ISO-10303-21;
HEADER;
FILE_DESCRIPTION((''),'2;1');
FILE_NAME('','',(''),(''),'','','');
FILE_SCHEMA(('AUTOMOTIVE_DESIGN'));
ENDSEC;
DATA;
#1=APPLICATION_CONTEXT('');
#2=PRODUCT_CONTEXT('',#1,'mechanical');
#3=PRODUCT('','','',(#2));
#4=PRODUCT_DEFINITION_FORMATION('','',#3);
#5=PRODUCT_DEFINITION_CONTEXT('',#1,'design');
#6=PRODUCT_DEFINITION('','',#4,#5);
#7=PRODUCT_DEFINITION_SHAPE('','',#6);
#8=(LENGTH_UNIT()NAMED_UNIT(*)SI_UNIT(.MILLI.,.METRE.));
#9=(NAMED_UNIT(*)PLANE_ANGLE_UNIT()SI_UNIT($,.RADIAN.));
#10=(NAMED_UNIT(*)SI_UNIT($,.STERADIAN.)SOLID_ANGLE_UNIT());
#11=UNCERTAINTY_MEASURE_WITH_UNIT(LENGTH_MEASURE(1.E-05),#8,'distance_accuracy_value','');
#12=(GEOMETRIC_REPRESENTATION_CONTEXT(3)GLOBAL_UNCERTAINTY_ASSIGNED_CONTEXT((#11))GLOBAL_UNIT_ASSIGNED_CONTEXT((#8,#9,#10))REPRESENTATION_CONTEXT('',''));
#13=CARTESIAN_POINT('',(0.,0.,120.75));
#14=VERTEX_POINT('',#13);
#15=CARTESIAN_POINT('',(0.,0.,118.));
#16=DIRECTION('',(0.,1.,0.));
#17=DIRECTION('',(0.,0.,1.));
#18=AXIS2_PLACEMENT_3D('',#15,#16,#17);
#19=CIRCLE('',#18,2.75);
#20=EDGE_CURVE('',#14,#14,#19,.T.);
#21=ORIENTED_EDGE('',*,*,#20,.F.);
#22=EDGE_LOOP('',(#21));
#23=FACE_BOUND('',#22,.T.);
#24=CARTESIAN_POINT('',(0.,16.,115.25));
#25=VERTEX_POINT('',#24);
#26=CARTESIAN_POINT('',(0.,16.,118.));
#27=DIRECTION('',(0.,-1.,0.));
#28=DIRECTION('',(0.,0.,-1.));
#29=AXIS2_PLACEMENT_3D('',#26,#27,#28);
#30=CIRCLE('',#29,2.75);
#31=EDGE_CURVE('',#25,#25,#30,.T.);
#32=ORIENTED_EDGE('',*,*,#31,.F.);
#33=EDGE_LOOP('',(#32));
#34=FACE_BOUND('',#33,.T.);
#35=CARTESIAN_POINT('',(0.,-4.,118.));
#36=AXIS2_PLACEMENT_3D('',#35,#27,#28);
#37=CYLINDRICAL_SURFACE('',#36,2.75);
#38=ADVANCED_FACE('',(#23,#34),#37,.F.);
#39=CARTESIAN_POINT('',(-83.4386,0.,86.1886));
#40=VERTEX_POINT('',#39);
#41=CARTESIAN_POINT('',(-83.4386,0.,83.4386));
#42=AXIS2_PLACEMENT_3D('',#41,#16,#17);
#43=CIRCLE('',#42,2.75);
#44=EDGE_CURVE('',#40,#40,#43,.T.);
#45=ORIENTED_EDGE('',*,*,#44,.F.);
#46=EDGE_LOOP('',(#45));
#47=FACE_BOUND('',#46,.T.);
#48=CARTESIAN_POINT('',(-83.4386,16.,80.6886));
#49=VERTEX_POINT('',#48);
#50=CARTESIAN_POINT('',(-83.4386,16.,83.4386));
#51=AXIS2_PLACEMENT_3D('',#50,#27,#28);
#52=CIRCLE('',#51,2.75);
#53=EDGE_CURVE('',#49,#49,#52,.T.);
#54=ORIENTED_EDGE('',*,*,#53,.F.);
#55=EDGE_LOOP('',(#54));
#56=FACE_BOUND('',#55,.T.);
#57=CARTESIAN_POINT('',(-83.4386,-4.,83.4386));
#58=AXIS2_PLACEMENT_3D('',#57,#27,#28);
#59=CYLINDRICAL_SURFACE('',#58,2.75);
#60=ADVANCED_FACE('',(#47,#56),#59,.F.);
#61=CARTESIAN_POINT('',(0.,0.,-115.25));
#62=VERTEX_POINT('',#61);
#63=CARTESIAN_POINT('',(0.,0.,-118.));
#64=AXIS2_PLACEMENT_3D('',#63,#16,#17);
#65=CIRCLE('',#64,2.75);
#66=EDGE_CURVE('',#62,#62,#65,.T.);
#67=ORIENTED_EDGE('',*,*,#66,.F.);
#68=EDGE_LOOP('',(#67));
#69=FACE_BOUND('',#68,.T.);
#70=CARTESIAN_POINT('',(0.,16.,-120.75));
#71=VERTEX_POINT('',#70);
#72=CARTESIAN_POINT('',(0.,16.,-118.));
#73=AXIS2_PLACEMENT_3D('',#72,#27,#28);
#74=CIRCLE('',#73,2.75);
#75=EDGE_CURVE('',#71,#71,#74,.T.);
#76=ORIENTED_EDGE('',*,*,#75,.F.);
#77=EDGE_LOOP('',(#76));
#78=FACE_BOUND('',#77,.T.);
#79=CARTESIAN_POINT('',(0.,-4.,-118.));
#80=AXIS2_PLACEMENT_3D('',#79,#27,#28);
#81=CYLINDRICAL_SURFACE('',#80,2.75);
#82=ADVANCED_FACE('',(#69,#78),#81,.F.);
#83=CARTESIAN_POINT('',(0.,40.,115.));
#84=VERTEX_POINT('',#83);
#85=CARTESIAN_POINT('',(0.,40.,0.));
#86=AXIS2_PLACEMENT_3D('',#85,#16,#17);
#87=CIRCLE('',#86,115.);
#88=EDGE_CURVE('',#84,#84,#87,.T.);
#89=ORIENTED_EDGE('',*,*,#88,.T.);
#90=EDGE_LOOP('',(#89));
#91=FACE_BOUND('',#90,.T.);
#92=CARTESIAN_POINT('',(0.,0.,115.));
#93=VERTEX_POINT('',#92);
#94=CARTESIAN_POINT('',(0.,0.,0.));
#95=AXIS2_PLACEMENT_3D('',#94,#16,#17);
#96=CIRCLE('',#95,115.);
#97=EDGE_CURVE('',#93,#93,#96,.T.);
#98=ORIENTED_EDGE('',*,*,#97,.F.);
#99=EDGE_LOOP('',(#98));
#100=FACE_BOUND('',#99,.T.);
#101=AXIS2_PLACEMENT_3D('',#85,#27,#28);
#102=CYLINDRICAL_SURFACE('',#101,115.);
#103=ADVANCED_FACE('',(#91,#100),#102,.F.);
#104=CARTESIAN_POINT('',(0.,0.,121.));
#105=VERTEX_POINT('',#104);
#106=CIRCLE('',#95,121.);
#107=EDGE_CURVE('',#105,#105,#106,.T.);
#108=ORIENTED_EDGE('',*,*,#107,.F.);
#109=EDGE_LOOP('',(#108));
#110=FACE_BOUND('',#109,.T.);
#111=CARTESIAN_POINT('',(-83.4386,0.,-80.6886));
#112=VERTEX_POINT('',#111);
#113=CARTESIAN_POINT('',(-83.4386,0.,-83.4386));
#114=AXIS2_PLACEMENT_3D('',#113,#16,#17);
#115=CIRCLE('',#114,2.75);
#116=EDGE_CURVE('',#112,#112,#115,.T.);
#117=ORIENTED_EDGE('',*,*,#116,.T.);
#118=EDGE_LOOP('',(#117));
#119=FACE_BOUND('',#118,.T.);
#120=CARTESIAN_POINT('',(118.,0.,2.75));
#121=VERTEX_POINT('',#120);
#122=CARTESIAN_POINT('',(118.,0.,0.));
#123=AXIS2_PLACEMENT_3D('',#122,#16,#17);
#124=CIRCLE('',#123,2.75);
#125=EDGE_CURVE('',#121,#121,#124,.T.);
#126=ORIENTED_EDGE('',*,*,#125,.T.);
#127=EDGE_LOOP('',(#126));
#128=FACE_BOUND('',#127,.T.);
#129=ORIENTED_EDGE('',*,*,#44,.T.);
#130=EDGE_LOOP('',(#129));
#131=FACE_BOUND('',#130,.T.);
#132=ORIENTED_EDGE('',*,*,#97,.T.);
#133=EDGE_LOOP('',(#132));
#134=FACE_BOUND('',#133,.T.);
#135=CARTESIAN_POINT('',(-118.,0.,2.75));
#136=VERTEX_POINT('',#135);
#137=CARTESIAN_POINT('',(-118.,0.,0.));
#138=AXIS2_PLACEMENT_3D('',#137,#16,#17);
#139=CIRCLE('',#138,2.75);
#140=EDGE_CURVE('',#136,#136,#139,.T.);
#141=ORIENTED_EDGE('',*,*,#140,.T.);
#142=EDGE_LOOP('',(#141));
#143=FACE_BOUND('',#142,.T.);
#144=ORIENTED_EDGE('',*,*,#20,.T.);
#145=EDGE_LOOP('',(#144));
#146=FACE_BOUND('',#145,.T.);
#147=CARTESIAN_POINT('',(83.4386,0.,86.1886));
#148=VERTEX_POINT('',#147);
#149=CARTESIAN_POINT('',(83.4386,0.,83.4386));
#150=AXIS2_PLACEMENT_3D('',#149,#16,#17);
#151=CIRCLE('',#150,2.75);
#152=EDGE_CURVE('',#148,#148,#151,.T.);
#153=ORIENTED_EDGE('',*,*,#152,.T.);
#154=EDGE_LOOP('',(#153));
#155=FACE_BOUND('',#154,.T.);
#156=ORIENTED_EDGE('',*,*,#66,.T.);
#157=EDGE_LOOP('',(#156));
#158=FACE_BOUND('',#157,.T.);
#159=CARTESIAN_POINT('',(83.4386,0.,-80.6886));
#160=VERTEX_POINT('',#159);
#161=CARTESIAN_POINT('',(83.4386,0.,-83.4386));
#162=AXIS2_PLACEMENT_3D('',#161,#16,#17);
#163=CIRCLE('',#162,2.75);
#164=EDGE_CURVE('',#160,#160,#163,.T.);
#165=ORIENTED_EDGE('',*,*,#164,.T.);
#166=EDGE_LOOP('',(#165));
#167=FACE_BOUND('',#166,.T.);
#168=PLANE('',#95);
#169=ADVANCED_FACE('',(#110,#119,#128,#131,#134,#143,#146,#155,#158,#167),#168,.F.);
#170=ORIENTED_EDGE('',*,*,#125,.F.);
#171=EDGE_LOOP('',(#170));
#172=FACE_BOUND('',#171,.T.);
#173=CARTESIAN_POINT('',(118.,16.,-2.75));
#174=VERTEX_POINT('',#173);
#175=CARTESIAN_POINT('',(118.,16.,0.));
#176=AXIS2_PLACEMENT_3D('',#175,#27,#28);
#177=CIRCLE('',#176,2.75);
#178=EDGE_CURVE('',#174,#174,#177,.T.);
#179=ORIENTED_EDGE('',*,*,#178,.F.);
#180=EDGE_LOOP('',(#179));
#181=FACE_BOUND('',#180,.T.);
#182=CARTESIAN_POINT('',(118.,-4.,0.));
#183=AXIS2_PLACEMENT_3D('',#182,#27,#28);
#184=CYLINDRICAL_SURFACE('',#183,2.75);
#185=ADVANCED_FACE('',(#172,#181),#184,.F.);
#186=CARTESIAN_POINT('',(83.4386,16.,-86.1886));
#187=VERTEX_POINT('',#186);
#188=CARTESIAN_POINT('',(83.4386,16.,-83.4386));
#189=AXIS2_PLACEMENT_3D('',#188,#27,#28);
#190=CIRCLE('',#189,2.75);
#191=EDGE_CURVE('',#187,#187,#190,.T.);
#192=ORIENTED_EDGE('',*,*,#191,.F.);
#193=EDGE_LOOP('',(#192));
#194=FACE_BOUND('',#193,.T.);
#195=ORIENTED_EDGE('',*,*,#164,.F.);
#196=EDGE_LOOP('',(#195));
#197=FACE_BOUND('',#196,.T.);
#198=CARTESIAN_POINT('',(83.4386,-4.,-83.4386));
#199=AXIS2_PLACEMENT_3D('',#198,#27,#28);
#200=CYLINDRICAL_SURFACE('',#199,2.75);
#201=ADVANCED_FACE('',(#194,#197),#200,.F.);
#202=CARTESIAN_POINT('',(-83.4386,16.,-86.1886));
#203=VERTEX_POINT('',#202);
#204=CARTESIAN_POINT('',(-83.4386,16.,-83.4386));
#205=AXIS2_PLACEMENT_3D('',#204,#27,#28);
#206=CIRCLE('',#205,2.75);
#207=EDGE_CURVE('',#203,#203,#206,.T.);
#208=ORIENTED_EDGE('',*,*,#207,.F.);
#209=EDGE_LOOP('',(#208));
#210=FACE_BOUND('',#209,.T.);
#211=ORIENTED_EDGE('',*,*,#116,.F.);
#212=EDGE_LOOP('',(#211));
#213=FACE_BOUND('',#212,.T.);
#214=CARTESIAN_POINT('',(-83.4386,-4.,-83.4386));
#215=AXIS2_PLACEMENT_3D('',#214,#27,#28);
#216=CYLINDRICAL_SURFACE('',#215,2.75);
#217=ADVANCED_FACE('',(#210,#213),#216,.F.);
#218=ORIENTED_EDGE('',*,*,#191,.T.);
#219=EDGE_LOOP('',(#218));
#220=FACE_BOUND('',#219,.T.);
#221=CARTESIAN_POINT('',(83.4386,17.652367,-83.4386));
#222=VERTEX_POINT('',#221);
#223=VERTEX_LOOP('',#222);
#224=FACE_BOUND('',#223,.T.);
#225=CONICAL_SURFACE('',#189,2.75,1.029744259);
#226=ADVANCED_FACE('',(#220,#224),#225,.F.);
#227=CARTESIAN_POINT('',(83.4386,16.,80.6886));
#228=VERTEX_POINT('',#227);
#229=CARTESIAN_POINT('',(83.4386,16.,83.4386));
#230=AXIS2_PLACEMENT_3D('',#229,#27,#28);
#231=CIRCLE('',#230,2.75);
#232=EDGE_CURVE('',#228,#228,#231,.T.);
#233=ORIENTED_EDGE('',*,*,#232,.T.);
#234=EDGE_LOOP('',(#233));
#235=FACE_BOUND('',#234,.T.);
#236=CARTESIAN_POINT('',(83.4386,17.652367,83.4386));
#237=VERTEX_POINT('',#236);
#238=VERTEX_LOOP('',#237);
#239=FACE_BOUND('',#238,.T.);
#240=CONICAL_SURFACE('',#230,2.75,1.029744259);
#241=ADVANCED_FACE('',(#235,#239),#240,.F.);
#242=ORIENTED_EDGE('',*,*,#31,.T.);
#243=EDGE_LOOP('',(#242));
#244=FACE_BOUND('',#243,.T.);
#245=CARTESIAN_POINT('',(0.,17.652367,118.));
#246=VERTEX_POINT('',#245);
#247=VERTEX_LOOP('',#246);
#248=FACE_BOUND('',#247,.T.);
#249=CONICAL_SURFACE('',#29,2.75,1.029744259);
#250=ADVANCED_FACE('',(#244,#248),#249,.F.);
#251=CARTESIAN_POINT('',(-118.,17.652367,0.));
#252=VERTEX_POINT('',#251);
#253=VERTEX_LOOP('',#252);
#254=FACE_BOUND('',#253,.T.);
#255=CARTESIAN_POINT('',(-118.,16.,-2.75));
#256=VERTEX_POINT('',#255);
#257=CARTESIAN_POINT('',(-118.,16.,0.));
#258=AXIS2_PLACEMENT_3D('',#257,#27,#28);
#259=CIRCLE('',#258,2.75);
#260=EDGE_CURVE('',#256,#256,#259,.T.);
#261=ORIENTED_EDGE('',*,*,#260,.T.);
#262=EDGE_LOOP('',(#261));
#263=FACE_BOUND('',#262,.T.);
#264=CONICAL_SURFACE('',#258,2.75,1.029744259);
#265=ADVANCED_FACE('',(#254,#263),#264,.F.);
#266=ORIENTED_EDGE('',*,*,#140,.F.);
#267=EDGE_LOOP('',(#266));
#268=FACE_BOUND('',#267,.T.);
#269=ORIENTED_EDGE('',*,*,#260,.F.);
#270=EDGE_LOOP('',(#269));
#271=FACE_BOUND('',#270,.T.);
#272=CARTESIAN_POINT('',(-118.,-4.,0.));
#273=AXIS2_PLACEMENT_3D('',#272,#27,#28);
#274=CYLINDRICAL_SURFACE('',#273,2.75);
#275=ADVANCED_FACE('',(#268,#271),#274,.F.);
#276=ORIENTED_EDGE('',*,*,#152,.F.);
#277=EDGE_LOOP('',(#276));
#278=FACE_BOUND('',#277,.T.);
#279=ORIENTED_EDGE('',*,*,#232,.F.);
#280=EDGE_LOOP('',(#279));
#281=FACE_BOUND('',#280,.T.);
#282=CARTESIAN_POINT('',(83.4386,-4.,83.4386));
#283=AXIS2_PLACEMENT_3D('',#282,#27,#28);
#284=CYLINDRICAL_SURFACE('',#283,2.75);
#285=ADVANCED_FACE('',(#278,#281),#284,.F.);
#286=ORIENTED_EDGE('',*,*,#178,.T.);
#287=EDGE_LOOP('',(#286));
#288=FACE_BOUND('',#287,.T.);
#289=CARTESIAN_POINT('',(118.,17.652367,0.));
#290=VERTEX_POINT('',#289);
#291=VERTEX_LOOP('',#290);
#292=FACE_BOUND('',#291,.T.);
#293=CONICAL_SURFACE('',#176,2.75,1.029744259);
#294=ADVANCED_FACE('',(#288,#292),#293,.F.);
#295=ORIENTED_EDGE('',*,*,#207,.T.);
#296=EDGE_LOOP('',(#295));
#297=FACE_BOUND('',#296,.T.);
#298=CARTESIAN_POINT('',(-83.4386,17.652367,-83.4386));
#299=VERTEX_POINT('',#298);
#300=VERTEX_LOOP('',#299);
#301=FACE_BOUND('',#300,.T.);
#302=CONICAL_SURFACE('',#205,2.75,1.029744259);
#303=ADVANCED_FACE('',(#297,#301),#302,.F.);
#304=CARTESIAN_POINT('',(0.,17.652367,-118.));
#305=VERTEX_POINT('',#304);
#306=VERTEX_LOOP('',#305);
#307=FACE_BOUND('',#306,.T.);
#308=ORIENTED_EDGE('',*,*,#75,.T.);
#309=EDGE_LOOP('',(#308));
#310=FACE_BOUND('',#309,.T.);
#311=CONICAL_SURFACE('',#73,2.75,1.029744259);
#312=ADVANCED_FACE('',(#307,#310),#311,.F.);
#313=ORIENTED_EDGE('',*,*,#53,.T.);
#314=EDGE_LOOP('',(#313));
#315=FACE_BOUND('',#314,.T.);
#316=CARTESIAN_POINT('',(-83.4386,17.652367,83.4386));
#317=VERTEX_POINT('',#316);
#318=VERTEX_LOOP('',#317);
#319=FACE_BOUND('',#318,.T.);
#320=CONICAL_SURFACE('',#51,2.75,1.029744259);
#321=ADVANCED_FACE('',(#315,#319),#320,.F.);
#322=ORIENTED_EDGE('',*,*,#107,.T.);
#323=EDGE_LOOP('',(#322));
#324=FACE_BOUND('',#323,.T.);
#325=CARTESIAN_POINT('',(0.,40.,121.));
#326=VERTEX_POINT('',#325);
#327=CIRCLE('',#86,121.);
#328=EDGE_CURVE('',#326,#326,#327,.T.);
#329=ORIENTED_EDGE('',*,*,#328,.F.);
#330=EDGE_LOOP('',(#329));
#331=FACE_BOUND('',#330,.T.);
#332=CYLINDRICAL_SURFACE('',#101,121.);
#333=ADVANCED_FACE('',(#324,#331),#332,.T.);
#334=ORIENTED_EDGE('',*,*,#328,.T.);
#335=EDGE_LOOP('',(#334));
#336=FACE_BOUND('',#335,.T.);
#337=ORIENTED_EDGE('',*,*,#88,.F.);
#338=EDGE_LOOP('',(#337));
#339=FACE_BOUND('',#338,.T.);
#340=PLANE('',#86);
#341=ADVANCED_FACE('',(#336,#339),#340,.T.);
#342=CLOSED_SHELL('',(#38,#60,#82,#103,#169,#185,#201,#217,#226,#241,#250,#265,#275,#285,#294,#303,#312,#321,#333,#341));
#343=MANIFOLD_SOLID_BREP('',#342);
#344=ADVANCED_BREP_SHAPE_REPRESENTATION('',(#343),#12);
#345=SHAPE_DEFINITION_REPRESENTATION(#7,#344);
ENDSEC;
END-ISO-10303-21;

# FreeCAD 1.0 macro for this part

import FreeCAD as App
import Part
import Sketcher

V = App.Vector

doc = App.newDocument("Part")
body = doc.addObject("PartDesign::Body", "Body")

sketch1 = body.newObject("Sketcher::SketchObject", "Sketch")
sketch1.AttachmentSupport = (doc.getObject("XZ_Plane"), [""])
sketch1.MapMode = "FlatFace"
sketch1.addGeometry(Part.Circle(V(0, 0, 0), V(0, 0, 1), 121), False)
sketch1.addGeometry(Part.Circle(V(0, 0, 0), V(0, 0, 1), 115), False)
sketch1.addConstraint(Sketcher.Constraint("Coincident", 0, 3, -1, 1))
sketch1.addConstraint(Sketcher.Constraint("Coincident", 1, 3, -1, 1))
sketch1.addConstraint(Sketcher.Constraint("Diameter", 0, 242.0))
sketch1.addConstraint(Sketcher.Constraint("Diameter", 1, 230.0))
pad1 = body.newObject("PartDesign::Pad", "Pad")
pad1.Profile = sketch1
pad1.Length = 40
pad1.Reversed = True

sketch2 = body.newObject("Sketcher::SketchObject", "Sketch001")
sketch2.AttachmentSupport = (doc.getObject("XZ_Plane"), [""])
sketch2.MapMode = "FlatFace"
sketch2.AttachmentOffset = App.Placement(V(0, 0, 4), App.Rotation())
sketch2.addGeometry(Part.Circle(V(83.4386, 83.4386, 0), V(0, 0, 1), 2.75), False)
sketch2.addGeometry(Part.Circle(V(118, 0, 0), V(0, 0, 1), 2.75), False)
sketch2.addGeometry(Part.Circle(V(83.4386, -83.4386, 0), V(0, 0, 1), 2.75), False)
sketch2.addGeometry(Part.Circle(V(0, -118, 0), V(0, 0, 1), 2.75), False)
sketch2.addGeometry(Part.Circle(V(-83.4386, -83.4386, 0), V(0, 0, 1), 2.75), False)
sketch2.addGeometry(Part.Circle(V(-118, 0, 0), V(0, 0, 1), 2.75), False)
sketch2.addGeometry(Part.Circle(V(-83.4386, 83.4386, 0), V(0, 0, 1), 2.75), False)
sketch2.addGeometry(Part.Circle(V(0, 118, 0), V(0, 0, 1), 2.75), False)
sketch2.addConstraint(Sketcher.Constraint("Equal", 0, 1))
sketch2.addConstraint(Sketcher.Constraint("Equal", 1, 2))
sketch2.addConstraint(Sketcher.Constraint("Equal", 2, 3))
sketch2.addConstraint(Sketcher.Constraint("Equal", 3, 4))
sketch2.addConstraint(Sketcher.Constraint("Equal", 4, 5))
sketch2.addConstraint(Sketcher.Constraint("Equal", 5, 6))
sketch2.addConstraint(Sketcher.Constraint("Equal", 6, 7))
sketch2.addConstraint(Sketcher.Constraint("Symmetric", 0, 3, 4, 3, -1, 1))
sketch2.addConstraint(Sketcher.Constraint("Symmetric", 1, 3, 5, 3, -1, 1))
sketch2.addConstraint(Sketcher.Constraint("Symmetric", 2, 3, 6, 3, -1, 1))
sketch2.addConstraint(Sketcher.Constraint("Symmetric", 3, 3, 7, 3, -1, 1))
sketch2.addConstraint(Sketcher.Constraint("Symmetric", 2, 3, 4, 3, -2))
sketch2.addConstraint(Sketcher.Constraint("PointOnObject", 1, 3, -1))
sketch2.addConstraint(Sketcher.Constraint("PointOnObject", 3, 3, -2))
sketch2.addConstraint(Sketcher.Constraint("Diameter", 0, 5.5))
sketch2.addConstraint(Sketcher.Constraint("DistanceX", -1, 1, 1, 3, 118.0))
sketch2.addConstraint(Sketcher.Constraint("DistanceY", 3, 3, -1, 1, 118.0))
sketch2.addConstraint(Sketcher.Constraint("DistanceX", -1, 1, 0, 3, 83.4386))
sketch2.addConstraint(Sketcher.Constraint("DistanceY", -1, 1, 0, 3, 83.4386))
doc.recompute()
hole = body.newObject("PartDesign::Hole", "Hole")
hole.Profile = sketch2
hole.ThreadType = "None"
hole.Diameter = 5.5
hole.DepthType = "Dimension"
hole.Depth = 20
hole.DrillPoint = "Angled"
hole.DrillPointAngle = 118
hole.HoleCutType = "Countersink"
hole.HoleCutDiameter = 10.4
hole.HoleCutCountersinkAngle = 90

doc.recompute()
